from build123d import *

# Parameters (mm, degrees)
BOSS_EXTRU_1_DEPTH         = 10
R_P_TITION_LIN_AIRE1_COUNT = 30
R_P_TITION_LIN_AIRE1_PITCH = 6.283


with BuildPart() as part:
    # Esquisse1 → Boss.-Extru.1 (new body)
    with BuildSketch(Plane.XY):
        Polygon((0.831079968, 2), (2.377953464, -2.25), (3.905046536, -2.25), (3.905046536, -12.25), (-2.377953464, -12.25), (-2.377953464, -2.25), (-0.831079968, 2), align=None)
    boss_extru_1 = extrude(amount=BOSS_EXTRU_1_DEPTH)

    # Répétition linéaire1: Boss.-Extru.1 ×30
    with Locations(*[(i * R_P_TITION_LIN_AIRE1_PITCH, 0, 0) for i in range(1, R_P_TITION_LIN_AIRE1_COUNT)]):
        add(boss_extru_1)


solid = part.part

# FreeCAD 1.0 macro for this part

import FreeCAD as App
import Part
import Sketcher
from FreeCAD import Vector
Q = App.Units.Quantity


def add_polygon(sketch, points):
    """Adds a closed chain of lines whose ends are joined by coincident constraints."""
    first, n = sketch.GeometryCount, len(points)
    for a, b in zip(points, points[1:] + points[:1]):
        sketch.addGeometry(Part.LineSegment(App.Vector(*a, 0), App.Vector(*b, 0)), False)
    for i in range(n):
        sketch.addConstraint(Sketcher.Constraint("Coincident", first + i, 2, first + (i + 1) % n, 1))

doc = App.newDocument("Part")
body = doc.addObject("PartDesign::Body", "Body")

# Sketch on XY plane
sketch1 = body.newObject("Sketcher::SketchObject", "Sketch")
sketch1.AttachmentSupport = (doc.getObject("XY_Plane"), [""])
sketch1.MapMode = "FlatFace"
add_polygon(sketch1, [(2.4, -2.2), (0.8, 2), (-0.8, 2), (-2.4, -2.2), (-2.4, -12.2), (3.9, -12.2), (3.9, -2.2)])  # lines 0-6
sketch1.addConstraint([
    Sketcher.Constraint("Horizontal", 1),
    Sketcher.Constraint("Vertical", 3),
    Sketcher.Constraint("Horizontal", 4),
    Sketcher.Constraint("Vertical", 5),
    Sketcher.Constraint("Horizontal", 6),
    Sketcher.Constraint("Symmetric", 2, 2, 6, 2, -2),
    Sketcher.Constraint("Equal", 0, 2),
    Sketcher.Constraint("DistanceY", 3, 2, 3, 1, 10.0),
    Sketcher.Constraint("Angle", 0, Q("110 deg")),
    Sketcher.Constraint("DistanceY", -1, 1, 0, 2, 2.0),
    Sketcher.Constraint("DistanceX", 4, 1, 4, 2, 6.283),
    Sketcher.Constraint("DistanceY", 2, 2, -1, 1, 2.25),
    Sketcher.Constraint("DistanceX", 1, 2, 1, 1, 1.66216),
])
pad1 = body.newObject("PartDesign::Pad", "Pad")
pad1.Profile = sketch1
pad1.Length = 10
doc.recompute()

linearpattern = body.newObject("PartDesign::LinearPattern", "LinearPattern")
linearpattern.Originals = [pad1]
linearpattern.Direction = (doc.getObject("X_Axis"), [""])
linearpattern.Mode = "offset"
linearpattern.Offset = 6.283
linearpattern.Occurrences = 30
body.Tip = linearpattern

doc.recompute()
